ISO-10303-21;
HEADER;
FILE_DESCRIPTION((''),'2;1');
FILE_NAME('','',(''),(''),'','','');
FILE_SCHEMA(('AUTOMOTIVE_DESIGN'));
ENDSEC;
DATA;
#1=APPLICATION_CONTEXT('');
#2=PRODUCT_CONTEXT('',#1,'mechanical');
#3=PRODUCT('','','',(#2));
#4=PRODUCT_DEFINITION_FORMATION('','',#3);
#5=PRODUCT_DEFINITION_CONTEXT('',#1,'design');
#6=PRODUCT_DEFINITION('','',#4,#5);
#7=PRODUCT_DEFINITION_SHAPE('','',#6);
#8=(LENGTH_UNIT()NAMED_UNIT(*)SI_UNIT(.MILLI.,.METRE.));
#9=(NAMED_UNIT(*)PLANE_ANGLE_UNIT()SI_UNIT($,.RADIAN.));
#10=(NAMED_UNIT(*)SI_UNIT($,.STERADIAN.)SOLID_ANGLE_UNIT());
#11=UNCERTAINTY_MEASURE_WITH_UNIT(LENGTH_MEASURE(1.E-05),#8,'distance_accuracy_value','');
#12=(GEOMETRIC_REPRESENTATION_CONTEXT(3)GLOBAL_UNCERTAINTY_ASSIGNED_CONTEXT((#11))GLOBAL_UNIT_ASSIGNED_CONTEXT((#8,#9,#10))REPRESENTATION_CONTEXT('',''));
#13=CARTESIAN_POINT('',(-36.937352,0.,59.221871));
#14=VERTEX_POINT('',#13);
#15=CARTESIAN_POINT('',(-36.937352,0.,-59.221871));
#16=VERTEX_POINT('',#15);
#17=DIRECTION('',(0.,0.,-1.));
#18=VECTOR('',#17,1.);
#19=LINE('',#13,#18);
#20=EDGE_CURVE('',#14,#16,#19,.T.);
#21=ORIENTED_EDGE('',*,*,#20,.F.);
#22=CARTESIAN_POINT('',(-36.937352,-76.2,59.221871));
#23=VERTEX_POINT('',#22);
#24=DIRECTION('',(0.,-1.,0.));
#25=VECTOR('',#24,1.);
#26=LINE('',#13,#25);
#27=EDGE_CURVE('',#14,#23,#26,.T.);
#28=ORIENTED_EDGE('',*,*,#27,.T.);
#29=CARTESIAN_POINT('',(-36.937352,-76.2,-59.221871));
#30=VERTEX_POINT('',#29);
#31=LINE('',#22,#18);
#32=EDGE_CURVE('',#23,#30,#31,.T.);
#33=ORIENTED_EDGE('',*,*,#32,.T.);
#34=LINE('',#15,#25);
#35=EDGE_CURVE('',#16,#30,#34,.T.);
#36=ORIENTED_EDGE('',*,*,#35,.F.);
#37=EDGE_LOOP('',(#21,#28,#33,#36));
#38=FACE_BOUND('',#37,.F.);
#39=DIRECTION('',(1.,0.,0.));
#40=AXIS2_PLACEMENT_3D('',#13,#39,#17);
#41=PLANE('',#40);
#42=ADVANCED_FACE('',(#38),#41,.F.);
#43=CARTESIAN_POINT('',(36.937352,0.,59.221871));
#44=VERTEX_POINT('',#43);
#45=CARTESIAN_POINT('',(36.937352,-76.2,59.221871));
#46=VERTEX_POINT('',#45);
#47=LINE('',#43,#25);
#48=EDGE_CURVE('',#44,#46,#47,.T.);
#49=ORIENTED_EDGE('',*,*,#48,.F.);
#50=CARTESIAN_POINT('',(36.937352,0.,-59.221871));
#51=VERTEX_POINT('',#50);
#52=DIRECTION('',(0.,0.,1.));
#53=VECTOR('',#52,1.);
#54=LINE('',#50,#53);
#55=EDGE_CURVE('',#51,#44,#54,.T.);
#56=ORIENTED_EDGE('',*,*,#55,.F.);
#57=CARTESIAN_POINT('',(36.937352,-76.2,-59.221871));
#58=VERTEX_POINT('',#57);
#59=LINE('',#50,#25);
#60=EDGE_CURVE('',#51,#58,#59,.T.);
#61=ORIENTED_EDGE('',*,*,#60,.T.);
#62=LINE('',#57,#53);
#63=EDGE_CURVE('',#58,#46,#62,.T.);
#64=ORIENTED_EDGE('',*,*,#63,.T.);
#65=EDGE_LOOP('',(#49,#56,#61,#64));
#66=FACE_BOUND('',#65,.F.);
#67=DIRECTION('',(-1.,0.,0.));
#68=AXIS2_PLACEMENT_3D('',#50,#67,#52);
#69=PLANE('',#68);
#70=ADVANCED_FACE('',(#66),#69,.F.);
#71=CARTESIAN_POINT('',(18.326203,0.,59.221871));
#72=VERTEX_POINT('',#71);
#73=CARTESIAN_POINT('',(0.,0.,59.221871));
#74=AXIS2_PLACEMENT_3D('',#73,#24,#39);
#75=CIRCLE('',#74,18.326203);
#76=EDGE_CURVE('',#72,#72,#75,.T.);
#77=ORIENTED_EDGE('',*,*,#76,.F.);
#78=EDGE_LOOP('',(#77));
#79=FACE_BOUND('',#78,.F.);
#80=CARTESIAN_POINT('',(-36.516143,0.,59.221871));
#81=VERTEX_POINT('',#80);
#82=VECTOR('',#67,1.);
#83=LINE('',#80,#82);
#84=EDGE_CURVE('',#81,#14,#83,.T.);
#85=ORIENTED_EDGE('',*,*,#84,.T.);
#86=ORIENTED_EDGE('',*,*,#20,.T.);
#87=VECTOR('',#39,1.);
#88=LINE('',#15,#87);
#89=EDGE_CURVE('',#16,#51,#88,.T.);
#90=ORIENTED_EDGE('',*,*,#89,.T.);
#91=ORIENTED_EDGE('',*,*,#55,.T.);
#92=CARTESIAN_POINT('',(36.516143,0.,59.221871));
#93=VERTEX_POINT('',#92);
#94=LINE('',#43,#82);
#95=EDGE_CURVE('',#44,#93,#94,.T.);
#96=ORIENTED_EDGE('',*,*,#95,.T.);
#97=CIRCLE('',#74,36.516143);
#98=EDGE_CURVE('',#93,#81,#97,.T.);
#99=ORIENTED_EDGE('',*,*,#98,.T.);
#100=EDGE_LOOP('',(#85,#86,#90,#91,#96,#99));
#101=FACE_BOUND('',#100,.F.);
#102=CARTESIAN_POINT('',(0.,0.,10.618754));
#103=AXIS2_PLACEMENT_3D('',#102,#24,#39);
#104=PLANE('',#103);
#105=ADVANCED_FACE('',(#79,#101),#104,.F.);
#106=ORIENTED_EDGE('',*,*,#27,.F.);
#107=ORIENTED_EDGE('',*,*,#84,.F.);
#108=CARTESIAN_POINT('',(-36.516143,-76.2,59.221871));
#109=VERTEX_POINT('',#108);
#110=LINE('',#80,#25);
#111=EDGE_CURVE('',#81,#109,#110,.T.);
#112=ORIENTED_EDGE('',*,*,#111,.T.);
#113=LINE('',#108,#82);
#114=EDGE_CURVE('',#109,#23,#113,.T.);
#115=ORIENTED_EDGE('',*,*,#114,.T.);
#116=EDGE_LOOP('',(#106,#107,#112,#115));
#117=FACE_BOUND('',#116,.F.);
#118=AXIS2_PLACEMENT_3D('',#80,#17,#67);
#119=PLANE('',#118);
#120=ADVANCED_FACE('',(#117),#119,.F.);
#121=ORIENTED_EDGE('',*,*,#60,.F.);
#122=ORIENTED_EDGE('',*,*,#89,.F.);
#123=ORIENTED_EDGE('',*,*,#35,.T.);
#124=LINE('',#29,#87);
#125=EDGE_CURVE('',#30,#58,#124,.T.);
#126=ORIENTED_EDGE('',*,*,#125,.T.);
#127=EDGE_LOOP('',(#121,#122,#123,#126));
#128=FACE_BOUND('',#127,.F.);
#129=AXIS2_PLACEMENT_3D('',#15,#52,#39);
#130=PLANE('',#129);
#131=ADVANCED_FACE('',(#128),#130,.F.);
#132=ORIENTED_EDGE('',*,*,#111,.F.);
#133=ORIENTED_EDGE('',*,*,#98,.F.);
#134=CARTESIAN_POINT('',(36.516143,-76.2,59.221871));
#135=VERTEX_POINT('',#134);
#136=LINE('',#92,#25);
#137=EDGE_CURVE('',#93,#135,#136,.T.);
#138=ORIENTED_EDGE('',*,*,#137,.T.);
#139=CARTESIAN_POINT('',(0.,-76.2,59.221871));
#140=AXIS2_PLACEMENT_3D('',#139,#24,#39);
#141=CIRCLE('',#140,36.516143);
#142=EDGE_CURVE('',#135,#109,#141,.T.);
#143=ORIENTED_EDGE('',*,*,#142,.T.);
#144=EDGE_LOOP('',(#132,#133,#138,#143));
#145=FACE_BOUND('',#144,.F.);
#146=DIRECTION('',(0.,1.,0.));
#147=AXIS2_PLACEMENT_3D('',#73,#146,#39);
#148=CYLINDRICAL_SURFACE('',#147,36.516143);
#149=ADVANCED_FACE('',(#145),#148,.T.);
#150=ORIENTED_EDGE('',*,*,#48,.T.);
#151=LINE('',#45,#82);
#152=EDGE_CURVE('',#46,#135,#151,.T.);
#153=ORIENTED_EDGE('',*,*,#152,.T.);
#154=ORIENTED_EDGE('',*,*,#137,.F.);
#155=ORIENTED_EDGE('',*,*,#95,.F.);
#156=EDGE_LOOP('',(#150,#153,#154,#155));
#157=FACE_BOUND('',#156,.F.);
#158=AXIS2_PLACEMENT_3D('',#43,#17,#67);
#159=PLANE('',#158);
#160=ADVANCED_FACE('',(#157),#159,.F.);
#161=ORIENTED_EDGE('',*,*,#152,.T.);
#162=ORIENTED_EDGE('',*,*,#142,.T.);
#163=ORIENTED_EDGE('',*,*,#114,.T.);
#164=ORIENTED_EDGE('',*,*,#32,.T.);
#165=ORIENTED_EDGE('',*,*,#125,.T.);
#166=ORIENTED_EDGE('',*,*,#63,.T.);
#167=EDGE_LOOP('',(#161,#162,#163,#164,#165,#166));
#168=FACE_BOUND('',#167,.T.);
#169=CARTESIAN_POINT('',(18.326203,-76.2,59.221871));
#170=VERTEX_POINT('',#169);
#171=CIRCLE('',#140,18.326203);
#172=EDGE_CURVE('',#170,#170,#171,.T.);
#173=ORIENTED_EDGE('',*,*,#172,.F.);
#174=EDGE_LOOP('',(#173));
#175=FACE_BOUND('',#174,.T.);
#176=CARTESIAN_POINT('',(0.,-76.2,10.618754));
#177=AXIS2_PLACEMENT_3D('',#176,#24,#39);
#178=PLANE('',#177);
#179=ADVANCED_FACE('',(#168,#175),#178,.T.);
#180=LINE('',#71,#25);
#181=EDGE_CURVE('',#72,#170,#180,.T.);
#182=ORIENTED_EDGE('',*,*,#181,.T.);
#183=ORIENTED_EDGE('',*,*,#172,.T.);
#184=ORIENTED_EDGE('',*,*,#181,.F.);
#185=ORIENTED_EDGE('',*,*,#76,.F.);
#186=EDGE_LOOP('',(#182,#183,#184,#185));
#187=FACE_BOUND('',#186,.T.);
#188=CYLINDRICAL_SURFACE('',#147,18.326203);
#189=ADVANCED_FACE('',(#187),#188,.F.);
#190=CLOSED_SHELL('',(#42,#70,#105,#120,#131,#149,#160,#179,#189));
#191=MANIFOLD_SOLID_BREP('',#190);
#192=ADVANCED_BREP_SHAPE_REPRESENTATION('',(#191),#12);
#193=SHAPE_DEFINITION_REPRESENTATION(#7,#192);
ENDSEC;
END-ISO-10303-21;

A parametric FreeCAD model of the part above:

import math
import FreeCAD as App
import Part
import Sketcher
from FreeCAD import Vector

doc = App.newDocument("Part")
params = doc.addObject("Spreadsheet::Sheet", "Params")
for row, (alias, value) in enumerate([
    ("pad1_length", "3 in"),
], start=1):
    params.set(f"A{row}", alias)
    params.set(f"B{row}", "=" + value)
    params.setAlias(f"B{row}", alias)

body = doc.addObject("PartDesign::Body", "Body")

# Sketch on XZ plane
sketch1 = body.newObject("Sketcher::SketchObject", "Sketch")
sketch1.AttachmentSupport = (doc.getObject("XZ_Plane"), [""])
sketch1.MapMode = "FlatFace"
sketch1.addGeometry([
    Part.LineSegment(Vector(-36.94, -59.22, 0), Vector(36.94, -59.22, 0)),  # 0
    Part.LineSegment(Vector(36.94, -59.22, 0), Vector(36.94, 59.22, 0)),  # 1
    Part.LineSegment(Vector(36.94, 59.22, 0), Vector(36.52, 59.22, 0)),  # 2
    Part.ArcOfCircle(Part.Circle(Vector(0, 59.22, 0), Vector(0, 0, 1), 36.52), math.radians(0), math.radians(180)),  # 3
    Part.LineSegment(Vector(-36.52, 59.22, 0), Vector(-36.94, 59.22, 0)),  # 4
    Part.LineSegment(Vector(-36.94, 59.22, 0), Vector(-36.94, -59.22, 0)),  # 5
    Part.Circle(Vector(0, 59.22, 0), Vector(0, 0, 1), 18.33),  # 6
], False)
sketch1.addConstraint([
    Sketcher.Constraint("Coincident", 0, 2, 1, 1),
    Sketcher.Constraint("Coincident", 1, 2, 2, 1),
    Sketcher.Constraint("Coincident", 2, 2, 3, 1),
    Sketcher.Constraint("Coincident", 3, 2, 4, 1),
    Sketcher.Constraint("Coincident", 4, 2, 5, 1),
    Sketcher.Constraint("Coincident", 5, 2, 0, 1),
    Sketcher.Constraint("Horizontal", 0),
    Sketcher.Constraint("Vertical", 1),
    Sketcher.Constraint("Horizontal", 2),
    Sketcher.Constraint("Horizontal", 4),
    Sketcher.Constraint("Vertical", 5),
    Sketcher.Constraint("Coincident", 6, 3, 3, 3),
    Sketcher.Constraint("Symmetric", 0, 2, 4, 2, -1, 1),
    Sketcher.Constraint("Symmetric", 2, 2, 3, 2, -2),
    Sketcher.Constraint("Horizontal", 6, 3, 1, 2),
    Sketcher.Constraint("Diameter", 6, 36.652406),
    Sketcher.Constraint("Radius", 3, 36.516143),
    Sketcher.Constraint("DistanceX", 2, 2, 2, 1, 0.421209),
    Sketcher.Constraint("DistanceY", 1, 1, 1, 2, 118.443742),
])
pad1 = body.newObject("PartDesign::Pad", "Pad")
pad1.Profile = sketch1
pad1.setExpression("Length", "Params.pad1_length")

doc.recompute()
